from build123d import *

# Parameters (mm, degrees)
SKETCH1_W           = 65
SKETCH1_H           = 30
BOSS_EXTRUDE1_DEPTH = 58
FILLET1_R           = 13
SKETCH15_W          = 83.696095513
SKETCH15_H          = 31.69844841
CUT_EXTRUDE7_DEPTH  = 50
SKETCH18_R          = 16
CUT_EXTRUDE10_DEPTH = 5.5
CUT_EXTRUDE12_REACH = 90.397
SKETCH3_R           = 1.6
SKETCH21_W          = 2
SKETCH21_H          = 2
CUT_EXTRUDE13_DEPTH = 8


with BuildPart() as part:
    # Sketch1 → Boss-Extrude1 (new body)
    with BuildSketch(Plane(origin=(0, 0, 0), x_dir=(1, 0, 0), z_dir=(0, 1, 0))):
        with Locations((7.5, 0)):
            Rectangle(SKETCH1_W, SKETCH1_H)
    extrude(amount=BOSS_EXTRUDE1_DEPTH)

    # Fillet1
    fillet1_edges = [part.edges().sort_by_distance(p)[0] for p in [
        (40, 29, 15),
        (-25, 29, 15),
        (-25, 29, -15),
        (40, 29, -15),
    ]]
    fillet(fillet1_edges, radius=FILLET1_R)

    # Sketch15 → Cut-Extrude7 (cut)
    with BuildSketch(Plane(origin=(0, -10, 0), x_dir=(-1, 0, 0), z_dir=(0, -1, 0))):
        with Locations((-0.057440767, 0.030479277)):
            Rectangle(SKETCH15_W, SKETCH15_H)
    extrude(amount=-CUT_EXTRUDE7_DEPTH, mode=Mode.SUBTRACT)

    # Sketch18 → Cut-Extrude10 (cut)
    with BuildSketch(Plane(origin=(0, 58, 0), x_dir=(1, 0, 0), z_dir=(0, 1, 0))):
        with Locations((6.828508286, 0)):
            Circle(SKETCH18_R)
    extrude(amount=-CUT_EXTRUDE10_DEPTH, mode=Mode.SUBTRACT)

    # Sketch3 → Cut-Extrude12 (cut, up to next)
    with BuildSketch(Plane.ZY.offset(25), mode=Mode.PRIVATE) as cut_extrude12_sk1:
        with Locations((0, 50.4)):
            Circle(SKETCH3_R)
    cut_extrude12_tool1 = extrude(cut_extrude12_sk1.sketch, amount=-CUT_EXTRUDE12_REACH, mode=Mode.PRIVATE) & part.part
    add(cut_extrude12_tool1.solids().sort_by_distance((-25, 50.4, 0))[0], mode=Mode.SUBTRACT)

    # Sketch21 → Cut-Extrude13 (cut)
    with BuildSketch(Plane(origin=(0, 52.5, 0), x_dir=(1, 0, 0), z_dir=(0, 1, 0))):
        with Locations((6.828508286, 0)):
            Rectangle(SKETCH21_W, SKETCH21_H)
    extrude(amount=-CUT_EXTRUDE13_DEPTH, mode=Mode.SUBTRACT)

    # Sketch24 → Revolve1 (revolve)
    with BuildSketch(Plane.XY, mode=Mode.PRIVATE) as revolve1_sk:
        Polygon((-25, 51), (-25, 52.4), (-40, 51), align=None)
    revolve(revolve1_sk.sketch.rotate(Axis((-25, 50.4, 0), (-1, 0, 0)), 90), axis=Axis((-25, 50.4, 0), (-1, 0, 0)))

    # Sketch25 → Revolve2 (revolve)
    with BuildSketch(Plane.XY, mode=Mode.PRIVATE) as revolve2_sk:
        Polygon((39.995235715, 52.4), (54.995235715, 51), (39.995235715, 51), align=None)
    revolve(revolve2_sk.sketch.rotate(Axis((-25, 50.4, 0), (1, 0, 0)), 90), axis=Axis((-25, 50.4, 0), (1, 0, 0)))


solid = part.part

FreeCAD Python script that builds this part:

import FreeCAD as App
import Part
import Sketcher
Q = App.Units.Quantity


def edges_at(feature, points):
    """Names of the edges that pass closest to the given points."""
    edges = feature.Shape.Edges
    near = lambda p: min(range(len(edges)), key=lambda i: edges[i].distToShape(Part.Vertex(*p))[0])
    return sorted({f"Edge{near(p) + 1}" for p in points})

doc = App.newDocument("Part")
body = doc.addObject("PartDesign::Body", "Body")

sketch1 = doc.addObject("Sketcher::SketchObject", "Sketch")
body.addObject(sketch1)
sketch1.AttachmentSupport = (doc.XZ_Plane, [""])
sketch1.MapMode = "FlatFace"
sketch1.addGeometry([
    Part.LineSegment(App.Vector(-25, -15, 0), App.Vector(-25, 15, 0)),
    Part.LineSegment(App.Vector(-25, 15, 0), App.Vector(40, 15, 0)),
    Part.LineSegment(App.Vector(40, 15, 0), App.Vector(40, -15, 0)),
    Part.LineSegment(App.Vector(40, -15, 0), App.Vector(-25, -15, 0)),
], False)
sketch1.addConstraint([
    Sketcher.Constraint("Coincident", 0, 2, 1, 1),
    Sketcher.Constraint("Coincident", 1, 2, 2, 1),
    Sketcher.Constraint("Coincident", 2, 2, 3, 1),
    Sketcher.Constraint("Coincident", 3, 2, 0, 1),
    Sketcher.Constraint("Vertical", 0),
    Sketcher.Constraint("Horizontal", 1),
    Sketcher.Constraint("Vertical", 2),
    Sketcher.Constraint("Horizontal", 3),
    Sketcher.Constraint("DistanceX", 1, 1, 1, 2, Q("65 mm")),
    Sketcher.Constraint("DistanceY", 0, 1, 0, 2, Q("30 mm")),
    Sketcher.Constraint("DistanceX", 0, 2, -1, 1, Q("25 mm")),
    Sketcher.Constraint("DistanceY", -1, 1, 0, 2, Q("15 mm")),
])
pad1 = doc.addObject("PartDesign::Pad", "Pad")
body.addObject(pad1)
pad1.Profile = sketch1
pad1.Length = 58
pad1.Reversed = True
doc.recompute()

fillet = doc.addObject("PartDesign::Fillet", "Fillet")
body.addObject(fillet)
fillet.Base = (pad1, edges_at(pad1, [
    (40, 29, 15),
    (-25, 29, 15),
    (-25, 29, -15),
    (40, 29, -15),
]))
fillet.Radius = 13

sketch2 = doc.addObject("Sketcher::SketchObject", "Sketch001")
body.addObject(sketch2)
sketch2.AttachmentSupport = (doc.XZ_Plane, [""])
sketch2.MapMode = "FlatFace"
sketch2.AttachmentOffset = App.Placement(App.Vector(0, 0, 10), App.Rotation())
sketch2.addGeometry([
    Part.LineSegment(App.Vector(42, -16, 0), App.Vector(42, 16, 0)),
    Part.LineSegment(App.Vector(42, 16, 0), App.Vector(-42, 16, 0)),
    Part.LineSegment(App.Vector(-42, 16, 0), App.Vector(-42, -16, 0)),
    Part.LineSegment(App.Vector(-42, -16, 0), App.Vector(42, -16, 0)),
], False)
sketch2.addConstraint([
    Sketcher.Constraint("Coincident", 0, 2, 1, 1),
    Sketcher.Constraint("Coincident", 1, 2, 2, 1),
    Sketcher.Constraint("Coincident", 2, 2, 3, 1),
    Sketcher.Constraint("Coincident", 3, 2, 0, 1),
    Sketcher.Constraint("Vertical", 0),
    Sketcher.Constraint("Horizontal", 1),
    Sketcher.Constraint("Vertical", 2),
    Sketcher.Constraint("Horizontal", 3),
    Sketcher.Constraint("DistanceY", 0, 1, 0, 2, Q("31.698448 mm")),
    Sketcher.Constraint("DistanceX", 1, 2, 1, 1, Q("83.696096 mm")),
    Sketcher.Constraint("DistanceX", -1, 1, 0, 2, Q("41.905489 mm")),
    Sketcher.Constraint("DistanceY", -1, 1, 0, 2, Q("15.818745 mm")),
])
pocket1 = doc.addObject("PartDesign::Pocket", "Pocket")
body.addObject(pocket1)
pocket1.Profile = sketch2
pocket1.Length = 50

sketch3 = doc.addObject("Sketcher::SketchObject", "Sketch002")
body.addObject(sketch3)
sketch3.AttachmentSupport = (doc.XZ_Plane, [""])
sketch3.MapMode = "FlatFace"
sketch3.AttachmentOffset = App.Placement(App.Vector(0, 0, -58), App.Rotation())
sketch3.addGeometry(Part.Circle(App.Vector(7, 0, 0), App.Vector(0, 0, 1), 16), False)
sketch3.addConstraint([
    Sketcher.Constraint("PointOnObject", 0, 3, -1),
    Sketcher.Constraint("Diameter", 0, Q("32 mm")),
    Sketcher.Constraint("DistanceX", -1, 1, 0, 3, Q("6.828508 mm")),
])
pocket2 = doc.addObject("PartDesign::Pocket", "Pocket001")
body.addObject(pocket2)
pocket2.Profile = sketch3
pocket2.Length = 5.5
pocket2.Reversed = True

sketch4 = doc.addObject("Sketcher::SketchObject", "Sketch003")
body.addObject(sketch4)
sketch4.AttachmentSupport = (doc.YZ_Plane, [""])
sketch4.MapMode = "FlatFace"
sketch4.AttachmentOffset = App.Placement(App.Vector(0, 0, -25), App.Rotation())
sketch4.addGeometry(Part.Circle(App.Vector(50.4, 0, 0), App.Vector(0, 0, 1), 1.6), False)
sketch4.addConstraint([
    Sketcher.Constraint("PointOnObject", 0, 3, -1),
    Sketcher.Constraint("Diameter", 0, Q("3.2 mm")),
    Sketcher.Constraint("DistanceX", -1, 1, 0, 3, Q("50.4 mm")),
])
pocket3 = doc.addObject("PartDesign::Pocket", "Pocket002")
body.addObject(pocket3)
pocket3.Profile = sketch4
pocket3.Type = "UpToFirst"
pocket3.Reversed = True

sketch5 = doc.addObject("Sketcher::SketchObject", "Sketch004")
body.addObject(sketch5)
sketch5.AttachmentSupport = (doc.XZ_Plane, [""])
sketch5.MapMode = "FlatFace"
sketch5.AttachmentOffset = App.Placement(App.Vector(0, 0, -52.5), App.Rotation())
sketch5.addGeometry([
    Part.LineSegment(App.Vector(5.8, -1, 0), App.Vector(5.8, 1, 0)),
    Part.LineSegment(App.Vector(5.8, 1, 0), App.Vector(7.8, 1, 0)),
    Part.LineSegment(App.Vector(7.8, 1, 0), App.Vector(7.8, -1, 0)),
    Part.LineSegment(App.Vector(7.8, -1, 0), App.Vector(5.8, -1, 0)),
], False)
sketch5.addConstraint([
    Sketcher.Constraint("Coincident", 0, 2, 1, 1),
    Sketcher.Constraint("Coincident", 1, 2, 2, 1),
    Sketcher.Constraint("Coincident", 2, 2, 3, 1),
    Sketcher.Constraint("Coincident", 3, 2, 0, 1),
    Sketcher.Constraint("Vertical", 0),
    Sketcher.Constraint("Horizontal", 1),
    Sketcher.Constraint("Vertical", 2),
    Sketcher.Constraint("Horizontal", 3),
    Sketcher.Constraint("Equal", 3, 0),
    Sketcher.Constraint("DistanceX", 1, 1, 1, 2, Q("2 mm")),
    Sketcher.Constraint("DistanceY", -1, 1, 0, 2, Q("1 mm")),
    Sketcher.Constraint("DistanceX", -1, 1, 0, 2, Q("5.828508 mm")),
])
pocket4 = doc.addObject("PartDesign::Pocket", "Pocket003")
body.addObject(pocket4)
pocket4.Profile = sketch5
pocket4.Length = 8
pocket4.Reversed = True

sketch6 = doc.addObject("Sketcher::SketchObject", "Sketch005")
body.addObject(sketch6)
sketch6.AttachmentSupport = (doc.XY_Plane, [""])
sketch6.MapMode = "FlatFace"
sketch6.addGeometry([
    Part.LineSegment(App.Vector(-25, 51, 0), App.Vector(-25, 52.4, 0)),
    Part.LineSegment(App.Vector(-25, 52.4, 0), App.Vector(-40, 51, 0)),
    Part.LineSegment(App.Vector(-40, 51, 0), App.Vector(-25, 51, 0)),
], False)
sketch6.addGeometry(Part.LineSegment(App.Vector(-25, 50.4, 0), App.Vector(-40, 50.4, 0)), True)
sketch6.addConstraint([
    Sketcher.Constraint("Coincident", 0, 2, 1, 1),
    Sketcher.Constraint("Coincident", 1, 2, 2, 1),
    Sketcher.Constraint("Coincident", 2, 2, 0, 1),
    Sketcher.Constraint("Vertical", 0),
    Sketcher.Constraint("Horizontal", 2),
    Sketcher.Constraint("Horizontal", 3),
    Sketcher.Constraint("Vertical", 2, 2, 3, 1),
    Sketcher.Constraint("Vertical", 1, 2, 3, 2),
    Sketcher.Constraint("DistanceX", 2, 1, 2, 2, Q("15 mm")),
    Sketcher.Constraint("DistanceY", 0, 1, 0, 2, Q("1.4 mm")),
    Sketcher.Constraint("DistanceX", 0, 2, -1, 1, Q("25 mm")),
    Sketcher.Constraint("DistanceY", -1, 1, 1, 2, Q("51 mm")),
    Sketcher.Constraint("DistanceY", 3, 1, 0, 2, Q("2 mm")),
])
revolution = doc.addObject("PartDesign::Revolution", "Revolution")
body.addObject(revolution)
revolution.Profile = sketch6
revolution.ReferenceAxis = (sketch6, ["Axis0"])
revolution.Angle = 360

sketch7 = doc.addObject("Sketcher::SketchObject", "Sketch006")
body.addObject(sketch7)
sketch7.AttachmentSupport = (doc.XY_Plane, [""])
sketch7.MapMode = "FlatFace"
sketch7.addGeometry([
    Part.LineSegment(App.Vector(55, 51, 0), App.Vector(40, 52.4, 0)),
    Part.LineSegment(App.Vector(40, 52.4, 0), App.Vector(40, 51, 0)),
    Part.LineSegment(App.Vector(40, 51, 0), App.Vector(55, 51, 0)),
], False)
sketch7.addGeometry(Part.LineSegment(App.Vector(40, 50.4, 0), App.Vector(55, 50.4, 0)), True)
sketch7.addConstraint([
    Sketcher.Constraint("Coincident", 0, 2, 1, 1),
    Sketcher.Constraint("Coincident", 1, 2, 2, 1),
    Sketcher.Constraint("Coincident", 2, 2, 0, 1),
    Sketcher.Constraint("Vertical", 1),
    Sketcher.Constraint("Horizontal", 2),
    Sketcher.Constraint("Horizontal", 3),
    Sketcher.Constraint("Vertical", 1, 2, 3, 1),
    Sketcher.Constraint("Vertical", 2, 2, 3, 2),
    Sketcher.Constraint("DistanceX", 2, 1, 2, 2, Q("15 mm")),
    Sketcher.Constraint("DistanceY", 1, 2, 1, 1, Q("1.4 mm")),
    Sketcher.Constraint("DistanceY", -1, 1, 1, 2, Q("51 mm")),
    Sketcher.Constraint("DistanceY", 3, 1, 0, 2, Q("2 mm")),
    Sketcher.Constraint("DistanceX", -1, 1, 0, 2, Q("39.995236 mm")),
])
revolution2 = doc.addObject("PartDesign::Revolution", "Revolution001")
body.addObject(revolution2)
revolution2.Profile = sketch7
revolution2.ReferenceAxis = (sketch7, ["Axis0"])
revolution2.Angle = 360

doc.recompute()
